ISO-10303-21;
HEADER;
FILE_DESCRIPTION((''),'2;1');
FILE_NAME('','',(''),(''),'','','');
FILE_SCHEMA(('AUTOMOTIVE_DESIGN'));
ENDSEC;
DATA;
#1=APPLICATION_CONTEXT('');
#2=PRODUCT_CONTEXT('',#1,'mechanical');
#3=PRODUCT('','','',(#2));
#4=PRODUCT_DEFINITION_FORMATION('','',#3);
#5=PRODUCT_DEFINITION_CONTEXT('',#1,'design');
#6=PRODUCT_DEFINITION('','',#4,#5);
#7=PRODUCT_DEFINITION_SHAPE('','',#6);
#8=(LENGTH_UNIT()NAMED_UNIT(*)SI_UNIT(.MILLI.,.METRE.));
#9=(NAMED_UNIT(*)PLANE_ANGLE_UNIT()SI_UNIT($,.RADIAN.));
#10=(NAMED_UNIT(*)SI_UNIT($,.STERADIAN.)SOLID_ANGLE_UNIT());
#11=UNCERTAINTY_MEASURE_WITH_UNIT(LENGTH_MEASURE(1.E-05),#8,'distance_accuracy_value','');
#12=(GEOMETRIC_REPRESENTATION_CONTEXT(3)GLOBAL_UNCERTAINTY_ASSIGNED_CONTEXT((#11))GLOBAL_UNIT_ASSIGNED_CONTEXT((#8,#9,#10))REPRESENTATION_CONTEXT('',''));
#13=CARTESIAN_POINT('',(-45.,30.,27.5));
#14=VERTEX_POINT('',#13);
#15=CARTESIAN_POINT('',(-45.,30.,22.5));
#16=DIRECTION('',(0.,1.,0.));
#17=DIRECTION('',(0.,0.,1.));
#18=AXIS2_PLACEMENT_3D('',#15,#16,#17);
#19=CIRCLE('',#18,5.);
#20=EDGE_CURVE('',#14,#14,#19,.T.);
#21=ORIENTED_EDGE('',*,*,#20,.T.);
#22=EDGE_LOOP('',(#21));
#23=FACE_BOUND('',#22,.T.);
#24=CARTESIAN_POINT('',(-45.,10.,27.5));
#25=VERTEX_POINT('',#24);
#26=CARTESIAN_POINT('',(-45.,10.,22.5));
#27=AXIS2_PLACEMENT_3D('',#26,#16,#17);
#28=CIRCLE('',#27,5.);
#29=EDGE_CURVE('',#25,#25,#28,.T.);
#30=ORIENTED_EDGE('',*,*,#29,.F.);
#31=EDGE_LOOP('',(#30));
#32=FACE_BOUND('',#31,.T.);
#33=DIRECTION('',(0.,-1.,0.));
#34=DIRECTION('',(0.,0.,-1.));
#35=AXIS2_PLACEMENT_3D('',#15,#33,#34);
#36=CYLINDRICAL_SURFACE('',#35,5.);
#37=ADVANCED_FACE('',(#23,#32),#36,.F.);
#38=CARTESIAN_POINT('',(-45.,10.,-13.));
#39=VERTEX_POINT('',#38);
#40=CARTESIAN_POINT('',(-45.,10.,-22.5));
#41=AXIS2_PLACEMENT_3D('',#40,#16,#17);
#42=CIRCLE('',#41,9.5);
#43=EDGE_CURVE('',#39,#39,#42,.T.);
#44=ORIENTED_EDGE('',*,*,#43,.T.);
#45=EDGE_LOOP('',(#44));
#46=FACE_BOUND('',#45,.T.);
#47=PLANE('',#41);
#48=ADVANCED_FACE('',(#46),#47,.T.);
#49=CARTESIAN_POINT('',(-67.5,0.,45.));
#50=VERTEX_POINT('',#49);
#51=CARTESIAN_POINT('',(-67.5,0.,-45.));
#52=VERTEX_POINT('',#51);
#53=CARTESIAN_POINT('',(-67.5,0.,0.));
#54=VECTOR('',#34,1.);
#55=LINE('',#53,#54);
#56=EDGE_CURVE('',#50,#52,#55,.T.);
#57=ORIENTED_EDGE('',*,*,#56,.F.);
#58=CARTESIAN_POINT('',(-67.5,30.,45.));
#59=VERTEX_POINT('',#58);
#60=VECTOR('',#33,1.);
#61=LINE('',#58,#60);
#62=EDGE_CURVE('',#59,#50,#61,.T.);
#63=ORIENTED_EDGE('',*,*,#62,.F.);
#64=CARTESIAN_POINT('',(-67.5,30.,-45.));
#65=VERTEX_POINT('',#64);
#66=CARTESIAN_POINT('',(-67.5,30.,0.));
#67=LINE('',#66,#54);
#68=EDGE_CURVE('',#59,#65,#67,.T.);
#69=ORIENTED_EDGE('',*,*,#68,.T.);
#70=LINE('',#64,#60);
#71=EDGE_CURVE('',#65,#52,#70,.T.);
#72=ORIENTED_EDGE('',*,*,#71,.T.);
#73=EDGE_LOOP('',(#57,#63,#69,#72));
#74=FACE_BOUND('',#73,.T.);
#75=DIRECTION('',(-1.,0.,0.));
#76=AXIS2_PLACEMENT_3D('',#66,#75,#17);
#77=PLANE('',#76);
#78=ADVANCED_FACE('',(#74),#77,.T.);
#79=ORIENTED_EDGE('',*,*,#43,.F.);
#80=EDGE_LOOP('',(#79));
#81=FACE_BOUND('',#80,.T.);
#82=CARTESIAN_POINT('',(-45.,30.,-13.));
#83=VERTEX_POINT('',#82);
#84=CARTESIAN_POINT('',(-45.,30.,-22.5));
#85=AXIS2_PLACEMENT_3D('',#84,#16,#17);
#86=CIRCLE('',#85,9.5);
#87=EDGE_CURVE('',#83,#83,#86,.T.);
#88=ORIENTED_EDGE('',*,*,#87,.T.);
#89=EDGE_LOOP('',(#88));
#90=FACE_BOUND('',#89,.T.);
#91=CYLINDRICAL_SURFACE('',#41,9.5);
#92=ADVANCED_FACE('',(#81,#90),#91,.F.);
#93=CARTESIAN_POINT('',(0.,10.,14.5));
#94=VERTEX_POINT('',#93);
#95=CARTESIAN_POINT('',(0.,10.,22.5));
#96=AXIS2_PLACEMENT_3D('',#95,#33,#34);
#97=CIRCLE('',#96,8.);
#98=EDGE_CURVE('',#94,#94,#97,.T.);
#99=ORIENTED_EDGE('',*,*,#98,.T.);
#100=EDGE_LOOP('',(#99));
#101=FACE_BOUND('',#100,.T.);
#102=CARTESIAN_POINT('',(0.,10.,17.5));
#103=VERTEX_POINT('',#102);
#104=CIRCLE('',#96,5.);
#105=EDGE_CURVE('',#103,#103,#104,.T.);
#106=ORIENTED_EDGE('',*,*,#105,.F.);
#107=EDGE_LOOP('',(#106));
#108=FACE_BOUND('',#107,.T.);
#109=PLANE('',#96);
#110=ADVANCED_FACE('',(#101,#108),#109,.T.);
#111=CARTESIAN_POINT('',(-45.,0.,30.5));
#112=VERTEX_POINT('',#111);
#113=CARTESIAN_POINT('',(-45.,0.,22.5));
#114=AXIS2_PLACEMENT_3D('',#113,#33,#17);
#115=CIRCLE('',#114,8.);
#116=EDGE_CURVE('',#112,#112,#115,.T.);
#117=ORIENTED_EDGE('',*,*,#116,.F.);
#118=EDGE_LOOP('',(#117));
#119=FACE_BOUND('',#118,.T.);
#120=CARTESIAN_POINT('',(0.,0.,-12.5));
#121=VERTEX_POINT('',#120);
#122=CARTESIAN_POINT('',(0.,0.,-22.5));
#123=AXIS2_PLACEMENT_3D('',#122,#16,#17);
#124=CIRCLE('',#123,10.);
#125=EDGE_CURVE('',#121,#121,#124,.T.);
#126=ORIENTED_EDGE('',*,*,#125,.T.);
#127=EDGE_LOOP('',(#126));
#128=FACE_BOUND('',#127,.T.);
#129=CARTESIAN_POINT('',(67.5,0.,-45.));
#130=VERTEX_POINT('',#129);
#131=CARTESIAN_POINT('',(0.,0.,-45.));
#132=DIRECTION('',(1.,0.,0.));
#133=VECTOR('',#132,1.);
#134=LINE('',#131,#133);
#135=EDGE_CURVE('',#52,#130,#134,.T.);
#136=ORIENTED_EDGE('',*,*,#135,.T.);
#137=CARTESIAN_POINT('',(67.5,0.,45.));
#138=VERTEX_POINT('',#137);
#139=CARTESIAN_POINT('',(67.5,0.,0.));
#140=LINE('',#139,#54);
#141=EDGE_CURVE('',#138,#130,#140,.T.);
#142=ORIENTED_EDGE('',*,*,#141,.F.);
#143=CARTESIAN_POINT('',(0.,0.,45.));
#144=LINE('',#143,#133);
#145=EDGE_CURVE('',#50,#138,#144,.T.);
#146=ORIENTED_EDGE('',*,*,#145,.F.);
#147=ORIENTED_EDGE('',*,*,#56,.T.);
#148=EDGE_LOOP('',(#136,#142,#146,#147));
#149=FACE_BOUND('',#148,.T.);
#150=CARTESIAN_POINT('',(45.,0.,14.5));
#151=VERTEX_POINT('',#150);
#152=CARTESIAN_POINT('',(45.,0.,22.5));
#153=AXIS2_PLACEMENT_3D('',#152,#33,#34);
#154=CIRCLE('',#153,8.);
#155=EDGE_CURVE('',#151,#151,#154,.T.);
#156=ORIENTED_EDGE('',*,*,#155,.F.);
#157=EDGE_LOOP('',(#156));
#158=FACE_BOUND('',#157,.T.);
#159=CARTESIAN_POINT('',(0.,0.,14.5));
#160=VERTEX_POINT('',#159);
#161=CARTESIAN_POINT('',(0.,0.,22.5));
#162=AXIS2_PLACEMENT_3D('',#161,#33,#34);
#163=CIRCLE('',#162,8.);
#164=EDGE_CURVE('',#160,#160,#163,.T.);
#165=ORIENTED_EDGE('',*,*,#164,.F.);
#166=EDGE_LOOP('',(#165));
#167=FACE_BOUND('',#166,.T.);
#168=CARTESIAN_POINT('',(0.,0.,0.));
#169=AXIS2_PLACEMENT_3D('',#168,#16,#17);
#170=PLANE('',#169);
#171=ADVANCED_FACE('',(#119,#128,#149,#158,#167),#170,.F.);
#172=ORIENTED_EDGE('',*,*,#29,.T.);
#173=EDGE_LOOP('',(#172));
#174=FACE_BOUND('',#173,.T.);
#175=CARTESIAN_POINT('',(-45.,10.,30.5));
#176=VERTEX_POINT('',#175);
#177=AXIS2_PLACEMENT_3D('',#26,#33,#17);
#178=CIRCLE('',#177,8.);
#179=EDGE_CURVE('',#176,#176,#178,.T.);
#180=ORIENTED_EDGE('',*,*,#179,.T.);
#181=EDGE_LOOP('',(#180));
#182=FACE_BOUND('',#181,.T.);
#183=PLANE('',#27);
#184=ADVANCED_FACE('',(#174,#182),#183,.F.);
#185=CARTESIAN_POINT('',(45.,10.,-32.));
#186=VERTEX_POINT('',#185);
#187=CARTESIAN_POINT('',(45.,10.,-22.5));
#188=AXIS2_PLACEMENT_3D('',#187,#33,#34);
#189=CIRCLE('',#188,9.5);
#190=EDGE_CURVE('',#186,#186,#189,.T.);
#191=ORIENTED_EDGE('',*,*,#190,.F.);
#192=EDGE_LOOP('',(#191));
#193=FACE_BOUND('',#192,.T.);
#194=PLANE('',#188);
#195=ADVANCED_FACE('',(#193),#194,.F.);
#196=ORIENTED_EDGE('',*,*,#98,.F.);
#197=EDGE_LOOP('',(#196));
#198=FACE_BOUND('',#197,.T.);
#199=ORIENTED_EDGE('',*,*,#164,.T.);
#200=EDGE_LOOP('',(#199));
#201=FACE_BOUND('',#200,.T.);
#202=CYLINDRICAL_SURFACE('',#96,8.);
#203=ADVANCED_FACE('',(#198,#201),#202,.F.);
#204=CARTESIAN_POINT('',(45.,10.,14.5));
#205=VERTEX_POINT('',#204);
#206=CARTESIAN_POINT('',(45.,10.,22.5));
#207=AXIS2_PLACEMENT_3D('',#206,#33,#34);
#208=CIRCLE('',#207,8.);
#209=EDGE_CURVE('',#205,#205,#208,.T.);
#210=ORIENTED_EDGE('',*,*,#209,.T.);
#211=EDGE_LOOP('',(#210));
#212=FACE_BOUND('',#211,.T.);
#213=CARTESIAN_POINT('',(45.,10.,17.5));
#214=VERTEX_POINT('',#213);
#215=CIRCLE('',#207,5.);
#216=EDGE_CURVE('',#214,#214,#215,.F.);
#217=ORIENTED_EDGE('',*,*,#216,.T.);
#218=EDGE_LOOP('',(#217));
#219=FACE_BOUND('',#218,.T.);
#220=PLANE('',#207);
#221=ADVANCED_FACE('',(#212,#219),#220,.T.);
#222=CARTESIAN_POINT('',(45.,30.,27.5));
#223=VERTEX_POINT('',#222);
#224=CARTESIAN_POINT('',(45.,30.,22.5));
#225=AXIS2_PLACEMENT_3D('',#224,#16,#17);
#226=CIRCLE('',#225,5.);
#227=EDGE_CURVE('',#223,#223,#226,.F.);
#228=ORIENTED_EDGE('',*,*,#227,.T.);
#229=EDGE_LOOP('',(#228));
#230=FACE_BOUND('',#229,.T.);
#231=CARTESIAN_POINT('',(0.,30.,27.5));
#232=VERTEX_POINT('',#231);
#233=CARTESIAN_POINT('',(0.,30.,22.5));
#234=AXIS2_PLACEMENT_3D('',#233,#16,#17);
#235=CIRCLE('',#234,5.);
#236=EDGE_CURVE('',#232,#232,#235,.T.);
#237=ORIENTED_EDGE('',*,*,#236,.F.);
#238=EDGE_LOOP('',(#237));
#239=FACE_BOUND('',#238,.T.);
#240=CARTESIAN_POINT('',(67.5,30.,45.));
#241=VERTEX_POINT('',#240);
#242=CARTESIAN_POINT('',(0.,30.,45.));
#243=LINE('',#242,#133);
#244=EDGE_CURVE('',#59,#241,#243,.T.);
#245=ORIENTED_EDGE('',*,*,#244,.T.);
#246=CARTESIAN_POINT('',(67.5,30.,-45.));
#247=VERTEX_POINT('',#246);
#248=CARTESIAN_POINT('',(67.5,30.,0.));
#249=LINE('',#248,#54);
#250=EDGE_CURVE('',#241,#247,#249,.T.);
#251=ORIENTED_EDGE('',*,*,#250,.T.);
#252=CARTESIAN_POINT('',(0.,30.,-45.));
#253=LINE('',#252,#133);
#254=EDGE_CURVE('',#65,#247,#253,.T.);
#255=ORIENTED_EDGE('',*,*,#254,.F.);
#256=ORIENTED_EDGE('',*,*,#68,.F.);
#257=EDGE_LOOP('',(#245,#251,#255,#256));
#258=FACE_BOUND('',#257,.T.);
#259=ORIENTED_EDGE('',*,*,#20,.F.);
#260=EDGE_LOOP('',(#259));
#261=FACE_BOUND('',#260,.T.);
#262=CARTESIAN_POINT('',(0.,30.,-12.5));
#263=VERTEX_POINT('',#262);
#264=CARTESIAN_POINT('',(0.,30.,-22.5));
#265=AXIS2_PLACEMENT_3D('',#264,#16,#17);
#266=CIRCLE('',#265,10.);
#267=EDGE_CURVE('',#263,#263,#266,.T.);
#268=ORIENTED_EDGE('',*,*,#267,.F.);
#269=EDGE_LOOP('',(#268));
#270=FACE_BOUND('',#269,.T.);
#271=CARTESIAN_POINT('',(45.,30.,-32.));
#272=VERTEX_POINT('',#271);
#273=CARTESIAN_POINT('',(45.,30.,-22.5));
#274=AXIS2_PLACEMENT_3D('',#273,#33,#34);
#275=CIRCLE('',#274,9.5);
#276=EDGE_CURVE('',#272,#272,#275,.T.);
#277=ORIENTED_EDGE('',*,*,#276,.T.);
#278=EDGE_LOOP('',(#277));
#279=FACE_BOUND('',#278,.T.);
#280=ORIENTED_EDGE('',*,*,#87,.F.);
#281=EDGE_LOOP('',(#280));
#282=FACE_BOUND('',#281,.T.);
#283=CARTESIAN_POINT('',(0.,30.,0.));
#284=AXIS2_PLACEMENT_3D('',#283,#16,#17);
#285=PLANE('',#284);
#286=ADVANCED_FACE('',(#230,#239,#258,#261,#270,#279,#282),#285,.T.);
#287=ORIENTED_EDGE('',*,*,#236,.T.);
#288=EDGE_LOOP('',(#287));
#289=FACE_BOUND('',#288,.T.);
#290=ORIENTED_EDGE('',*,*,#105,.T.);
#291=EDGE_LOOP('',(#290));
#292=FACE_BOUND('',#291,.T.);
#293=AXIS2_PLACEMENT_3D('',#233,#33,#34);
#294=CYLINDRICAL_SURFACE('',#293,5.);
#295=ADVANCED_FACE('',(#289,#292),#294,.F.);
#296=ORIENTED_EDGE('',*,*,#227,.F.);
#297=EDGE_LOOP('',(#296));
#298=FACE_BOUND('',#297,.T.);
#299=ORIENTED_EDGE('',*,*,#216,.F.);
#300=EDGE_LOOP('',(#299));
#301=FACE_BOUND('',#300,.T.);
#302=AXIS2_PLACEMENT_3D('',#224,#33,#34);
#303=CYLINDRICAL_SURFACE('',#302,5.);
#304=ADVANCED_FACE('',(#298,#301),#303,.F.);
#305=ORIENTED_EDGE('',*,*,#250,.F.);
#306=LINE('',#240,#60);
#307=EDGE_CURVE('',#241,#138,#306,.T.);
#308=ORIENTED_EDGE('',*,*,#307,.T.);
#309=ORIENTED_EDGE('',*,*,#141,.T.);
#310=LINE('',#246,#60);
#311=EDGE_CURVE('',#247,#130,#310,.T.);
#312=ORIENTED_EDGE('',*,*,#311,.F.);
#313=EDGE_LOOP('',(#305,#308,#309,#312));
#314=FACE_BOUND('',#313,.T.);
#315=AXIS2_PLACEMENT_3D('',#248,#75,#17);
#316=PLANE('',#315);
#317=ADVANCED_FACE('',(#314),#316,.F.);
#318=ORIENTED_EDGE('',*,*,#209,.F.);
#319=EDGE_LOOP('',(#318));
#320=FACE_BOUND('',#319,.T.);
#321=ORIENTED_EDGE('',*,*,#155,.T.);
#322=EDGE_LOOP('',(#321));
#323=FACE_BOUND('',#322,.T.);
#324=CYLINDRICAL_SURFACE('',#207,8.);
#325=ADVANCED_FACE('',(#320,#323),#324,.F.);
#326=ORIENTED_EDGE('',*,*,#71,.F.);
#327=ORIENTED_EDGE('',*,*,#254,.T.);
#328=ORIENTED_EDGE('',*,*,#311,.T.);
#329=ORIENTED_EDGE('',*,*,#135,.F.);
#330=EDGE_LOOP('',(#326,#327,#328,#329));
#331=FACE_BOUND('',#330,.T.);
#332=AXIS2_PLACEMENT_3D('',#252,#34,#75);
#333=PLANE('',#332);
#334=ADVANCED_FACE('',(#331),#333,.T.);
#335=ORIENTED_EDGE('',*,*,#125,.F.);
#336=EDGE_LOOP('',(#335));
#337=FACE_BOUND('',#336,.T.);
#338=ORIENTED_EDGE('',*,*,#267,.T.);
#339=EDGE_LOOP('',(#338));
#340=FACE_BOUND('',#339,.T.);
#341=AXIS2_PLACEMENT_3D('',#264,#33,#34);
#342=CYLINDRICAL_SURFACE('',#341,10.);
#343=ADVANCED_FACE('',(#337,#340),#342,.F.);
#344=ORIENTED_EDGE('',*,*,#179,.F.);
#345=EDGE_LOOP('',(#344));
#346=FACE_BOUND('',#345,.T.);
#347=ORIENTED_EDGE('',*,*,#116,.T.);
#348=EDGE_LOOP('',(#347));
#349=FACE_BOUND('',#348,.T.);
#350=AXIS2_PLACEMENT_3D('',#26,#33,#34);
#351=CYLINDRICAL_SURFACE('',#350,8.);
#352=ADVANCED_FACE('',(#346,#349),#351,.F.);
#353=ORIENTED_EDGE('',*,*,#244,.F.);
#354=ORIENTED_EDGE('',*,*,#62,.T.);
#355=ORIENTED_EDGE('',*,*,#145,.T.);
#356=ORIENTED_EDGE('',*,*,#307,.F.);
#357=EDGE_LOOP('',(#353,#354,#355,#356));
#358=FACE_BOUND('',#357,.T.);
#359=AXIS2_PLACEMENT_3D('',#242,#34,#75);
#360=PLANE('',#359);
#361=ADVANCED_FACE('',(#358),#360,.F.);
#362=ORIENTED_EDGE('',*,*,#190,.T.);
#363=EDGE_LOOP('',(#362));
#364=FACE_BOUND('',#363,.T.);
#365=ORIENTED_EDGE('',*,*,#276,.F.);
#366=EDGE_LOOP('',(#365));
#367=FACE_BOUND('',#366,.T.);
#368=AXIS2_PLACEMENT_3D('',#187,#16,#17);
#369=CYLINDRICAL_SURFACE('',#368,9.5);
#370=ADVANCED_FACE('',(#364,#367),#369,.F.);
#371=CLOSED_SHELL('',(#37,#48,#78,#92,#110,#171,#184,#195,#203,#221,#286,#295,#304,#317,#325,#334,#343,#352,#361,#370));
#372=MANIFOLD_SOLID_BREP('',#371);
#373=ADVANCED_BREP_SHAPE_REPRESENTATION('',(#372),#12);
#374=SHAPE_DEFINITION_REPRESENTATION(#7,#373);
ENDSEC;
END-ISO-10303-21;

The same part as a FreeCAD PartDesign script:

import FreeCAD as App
import Part
import Sketcher

doc = App.newDocument("Part")
params = doc.addObject("Spreadsheet::Sheet", "Params")
for row, (alias, value) in enumerate([
    ("sketch1_diameter", "10 mm"),
    ("sketch1_diameter2", "20 mm"),
    ("sketch1_width", "135 mm"),
    ("sketch1_height", "90 mm"),
    ("pad1_length", "30 mm"),
    ("sketch2_diameter", "19 mm"),
    ("pocket1_length", "20 mm"),
    ("sketch3_diameter", "16 mm"),
    ("pocket2_length", "10 mm"),
], start=1):
    params.set(f"A{row}", alias)
    params.set(f"B{row}", "=" + value)
    params.setAlias(f"B{row}", alias)

body = doc.addObject("PartDesign::Body", "Body")

sketch1 = body.newObject("Sketcher::SketchObject", "Sketch")
sketch1.AttachmentSupport = (doc.getObject("XZ_Plane"), [""])
sketch1.MapMode = "FlatFace"
sketch1.addGeometry([
    Part.LineSegment(App.Vector(-68, -45, 0), App.Vector(-68, 45, 0)),
    Part.LineSegment(App.Vector(-68, 45, 0), App.Vector(68, 45, 0)),
    Part.LineSegment(App.Vector(68, 45, 0), App.Vector(68, -45, 0)),
    Part.LineSegment(App.Vector(68, -45, 0), App.Vector(-68, -45, 0)),
    Part.Circle(App.Vector(-45, 22, 0), App.Vector(0, 0, 1), 5),
    Part.Circle(App.Vector(0, 22, 0), App.Vector(0, 0, 1), 5),
    Part.Circle(App.Vector(45, 22, 0), App.Vector(0, 0, 1), 5),
    Part.Circle(App.Vector(0, -22, 0), App.Vector(0, 0, 1), 10),
], False)
sketch1.addConstraint([
    Sketcher.Constraint("Coincident", 0, 2, 1, 1),
    Sketcher.Constraint("Coincident", 1, 2, 2, 1),
    Sketcher.Constraint("Coincident", 2, 2, 3, 1),
    Sketcher.Constraint("Coincident", 3, 2, 0, 1),
    Sketcher.Constraint("Vertical", 0),
    Sketcher.Constraint("Horizontal", 1),
    Sketcher.Constraint("Vertical", 2),
    Sketcher.Constraint("Horizontal", 3),
    Sketcher.Constraint("Equal", 4, 5),
    Sketcher.Constraint("Equal", 5, 6),
    Sketcher.Constraint("Symmetric", 5, 3, 7, 3, -1, 1),
    Sketcher.Constraint("Symmetric", 0, 2, 2, 2, -1, 1),
    Sketcher.Constraint("Symmetric", 4, 3, 6, 3, -2),
    Sketcher.Constraint("PointOnObject", 5, 3, -2),
    Sketcher.Constraint("Horizontal", 4, 3, 5, 3),
    Sketcher.Constraint("Diameter", 4, 10.0),
    Sketcher.Constraint("Diameter", 7, 20.0),
    Sketcher.Constraint("DistanceX", 1, 1, 1, 2, 135.0),
    Sketcher.Constraint("DistanceY", 0, 1, 0, 2, 90.0),
    Sketcher.Constraint("DistanceX", 4, 3, -1, 1, 45.0),
    Sketcher.Constraint("DistanceY", 7, 3, 5, 3, 45.0),
])
sketch1.setExpression("Constraints[15]", "Params.sketch1_diameter")
sketch1.setExpression("Constraints[16]", "Params.sketch1_diameter2")
sketch1.setExpression("Constraints[17]", "Params.sketch1_width")
sketch1.setExpression("Constraints[18]", "Params.sketch1_height")
pad1 = body.newObject("PartDesign::Pad", "Pad")
pad1.Profile = sketch1
pad1.setExpression("Length", "Params.pad1_length")
pad1.Reversed = True

sketch2 = body.newObject("Sketcher::SketchObject", "Sketch001")
sketch2.AttachmentSupport = (doc.getObject("XZ_Plane"), [""])
sketch2.MapMode = "FlatFace"
sketch2.AttachmentOffset = App.Placement(App.Vector(0, 0, -30), App.Rotation())
sketch2.addGeometry([
    Part.Circle(App.Vector(-45, -22, 0), App.Vector(0, 0, 1), 10),
    Part.Circle(App.Vector(45, -22, 0), App.Vector(0, 0, 1), 10),
], False)
sketch2.addConstraint([
    Sketcher.Constraint("Equal", 0, 1),
    Sketcher.Constraint("Symmetric", 0, 3, 1, 3, -2),
    Sketcher.Constraint("Diameter", 0, 19.0),
    Sketcher.Constraint("DistanceX", 0, 3, -1, 1, 45.0),
    Sketcher.Constraint("DistanceY", 0, 3, -1, 1, 22.5),
])
sketch2.setExpression("Constraints[2]", "Params.sketch2_diameter")
pocket1 = body.newObject("PartDesign::Pocket", "Pocket")
pocket1.Profile = sketch2
pocket1.setExpression("Length", "Params.pocket1_length")
pocket1.Reversed = True

sketch3 = body.newObject("Sketcher::SketchObject", "Sketch002")
sketch3.AttachmentSupport = (doc.getObject("XZ_Plane"), [""])
sketch3.MapMode = "FlatFace"
sketch3.addGeometry([
    Part.Circle(App.Vector(45, 22, 0), App.Vector(0, 0, 1), 8),
    Part.Circle(App.Vector(0, 22, 0), App.Vector(0, 0, 1), 8),
    Part.Circle(App.Vector(-45, 22, 0), App.Vector(0, 0, 1), 8),
], False)
sketch3.addConstraint([
    Sketcher.Constraint("Equal", 0, 1),
    Sketcher.Constraint("Equal", 1, 2),
    Sketcher.Constraint("Symmetric", 0, 3, 2, 3, -2),
    Sketcher.Constraint("PointOnObject", 1, 3, -2),
    Sketcher.Constraint("Horizontal", 0, 3, 1, 3),
    Sketcher.Constraint("Diameter", 0, 16.0),
    Sketcher.Constraint("DistanceX", -1, 1, 0, 3, 45.0),
    Sketcher.Constraint("DistanceY", -1, 1, 0, 3, 22.5),
])
sketch3.setExpression("Constraints[5]", "Params.sketch3_diameter")
pocket2 = body.newObject("PartDesign::Pocket", "Pocket001")
pocket2.Profile = sketch3
pocket2.setExpression("Length", "Params.pocket2_length")

doc.recompute()
